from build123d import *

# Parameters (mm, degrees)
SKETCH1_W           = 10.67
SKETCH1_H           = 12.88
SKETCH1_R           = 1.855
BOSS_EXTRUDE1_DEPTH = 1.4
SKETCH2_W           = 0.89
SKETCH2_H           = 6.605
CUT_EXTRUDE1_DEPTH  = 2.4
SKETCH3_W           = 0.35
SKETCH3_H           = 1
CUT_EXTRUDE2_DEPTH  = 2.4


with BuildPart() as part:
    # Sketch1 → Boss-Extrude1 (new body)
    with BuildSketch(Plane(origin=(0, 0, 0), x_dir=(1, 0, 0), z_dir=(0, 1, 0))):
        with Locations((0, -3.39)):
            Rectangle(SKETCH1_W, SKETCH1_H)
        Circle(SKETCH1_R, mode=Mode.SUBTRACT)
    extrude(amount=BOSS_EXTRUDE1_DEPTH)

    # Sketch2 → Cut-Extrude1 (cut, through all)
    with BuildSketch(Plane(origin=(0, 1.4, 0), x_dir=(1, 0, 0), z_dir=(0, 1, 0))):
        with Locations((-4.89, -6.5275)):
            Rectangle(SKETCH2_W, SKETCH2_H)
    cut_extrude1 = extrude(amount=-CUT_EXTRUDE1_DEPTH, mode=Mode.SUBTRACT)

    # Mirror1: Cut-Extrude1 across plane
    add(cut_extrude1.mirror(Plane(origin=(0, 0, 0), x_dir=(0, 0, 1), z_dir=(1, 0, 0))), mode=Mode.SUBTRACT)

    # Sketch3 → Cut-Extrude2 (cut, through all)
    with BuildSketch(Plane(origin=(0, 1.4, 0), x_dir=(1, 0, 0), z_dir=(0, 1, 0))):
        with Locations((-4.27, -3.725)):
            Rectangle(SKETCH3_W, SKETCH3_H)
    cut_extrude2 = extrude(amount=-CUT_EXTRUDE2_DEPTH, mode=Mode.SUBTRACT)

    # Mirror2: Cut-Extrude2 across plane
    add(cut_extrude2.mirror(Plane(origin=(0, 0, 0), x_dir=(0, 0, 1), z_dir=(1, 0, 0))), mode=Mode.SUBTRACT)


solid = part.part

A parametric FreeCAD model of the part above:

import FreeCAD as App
import Part
import Sketcher

V = App.Vector


def add_polygon(sketch, points):
    """Adds a closed chain of lines whose ends are joined by coincident constraints."""
    first, n = sketch.GeometryCount, len(points)
    for a, b in zip(points, points[1:] + points[:1]):
        sketch.addGeometry(Part.LineSegment(App.Vector(*a, 0), App.Vector(*b, 0)), False)
    for i in range(n):
        sketch.addConstraint(Sketcher.Constraint("Coincident", first + i, 2, first + (i + 1) % n, 1))

doc = App.newDocument("Part")
body = doc.addObject("PartDesign::Body", "Body")

# Sketch on XZ plane
sketch1 = doc.addObject("Sketcher::SketchObject", "Sketch")
body.addObject(sketch1)
sketch1.AttachmentSupport = (doc.XZ_Plane, [""])
sketch1.MapMode = "FlatFace"
add_polygon(sketch1, [(-5.3, -3), (-5.3, 9.8), (5.3, 9.8), (5.3, -3)])  # lines 0-3
sketch1.addGeometry(Part.Circle(V(0, 0, 0), V(0, 0, 1), 1.9), False)  # 4
sketch1.addConstraint(Sketcher.Constraint("Vertical", 0))
sketch1.addConstraint(Sketcher.Constraint("Horizontal", 1))
sketch1.addConstraint(Sketcher.Constraint("Vertical", 2))
sketch1.addConstraint(Sketcher.Constraint("Horizontal", 3))
sketch1.addConstraint(Sketcher.Constraint("Coincident", 4, 3, -1, 1))
sketch1.addConstraint(Sketcher.Constraint("Diameter", 4, 3.71))
sketch1.addConstraint(Sketcher.Constraint("DistanceX", 1, 1, 1, 2, 10.67))
sketch1.addConstraint(Sketcher.Constraint("DistanceY", 0, 1, 0, 2, 12.88))
sketch1.addConstraint(Sketcher.Constraint("DistanceY", -1, 1, 0, 2, 9.83))
sketch1.addConstraint(Sketcher.Constraint("DistanceX", 0, 2, -1, 1, 5.335))
pad1 = doc.addObject("PartDesign::Pad", "Pad")
body.addObject(pad1)
pad1.Profile = sketch1
pad1.Length = 1.4
pad1.Reversed = True

# Sketch on XZ plane
sketch2 = doc.addObject("Sketcher::SketchObject", "Sketch001")
body.addObject(sketch2)
sketch2.AttachmentSupport = (doc.XZ_Plane, [""])
sketch2.MapMode = "FlatFace"
sketch2.AttachmentOffset = App.Placement(V(0, 0, -1.4), App.Rotation())
add_polygon(sketch2, [(-5.3, 3.2), (-5.3, 9.8), (-4.4, 9.8), (-4.4, 3.2)])  # lines 0-3
sketch2.addConstraint(Sketcher.Constraint("Vertical", 0))
sketch2.addConstraint(Sketcher.Constraint("Horizontal", 1))
sketch2.addConstraint(Sketcher.Constraint("Vertical", 2))
sketch2.addConstraint(Sketcher.Constraint("Horizontal", 3))
sketch2.addConstraint(Sketcher.Constraint("DistanceX", 1, 1, 1, 2, 0.89))
sketch2.addConstraint(Sketcher.Constraint("DistanceY", 0, 1, 0, 2, 6.605))
sketch2.addConstraint(Sketcher.Constraint("DistanceY", -1, 1, 0, 2, 9.83))
sketch2.addConstraint(Sketcher.Constraint("DistanceX", 0, 2, -1, 1, 5.335))
pocket1 = doc.addObject("PartDesign::Pocket", "Pocket")
body.addObject(pocket1)
pocket1.Profile = sketch2
pocket1.Type = "ThroughAll"
pocket1.Reversed = True
doc.recompute()

mirrored = doc.addObject("PartDesign::Mirrored", "Mirrored")
body.addObject(mirrored)
mirrored.Originals = [pocket1]
mirrored.MirrorPlane = (doc.YZ_Plane, [""])
body.Tip = mirrored

# Sketch on XZ plane
sketch3 = doc.addObject("Sketcher::SketchObject", "Sketch002")
body.addObject(sketch3)
sketch3.AttachmentSupport = (doc.XZ_Plane, [""])
sketch3.MapMode = "FlatFace"
sketch3.AttachmentOffset = App.Placement(V(0, 0, -1.4), App.Rotation())
add_polygon(sketch3, [(-4.45, 3.23), (-4.45, 4.22), (-4.09, 4.22), (-4.09, 3.23)])  # lines 0-3
sketch3.addConstraint(Sketcher.Constraint("Vertical", 0))
sketch3.addConstraint(Sketcher.Constraint("Horizontal", 1))
sketch3.addConstraint(Sketcher.Constraint("Vertical", 2))
sketch3.addConstraint(Sketcher.Constraint("Horizontal", 3))
sketch3.addConstraint(Sketcher.Constraint("DistanceY", 0, 1, 0, 2, 1.0))
sketch3.addConstraint(Sketcher.Constraint("DistanceX", 1, 1, 1, 2, 0.35))
sketch3.addConstraint(Sketcher.Constraint("DistanceX", 0, 2, -1, 1, 4.445))
sketch3.addConstraint(Sketcher.Constraint("DistanceY", -1, 1, 0, 2, 4.225))
pocket2 = doc.addObject("PartDesign::Pocket", "Pocket001")
body.addObject(pocket2)
pocket2.Profile = sketch3
pocket2.Type = "ThroughAll"
pocket2.Reversed = True
doc.recompute()

mirrored2 = doc.addObject("PartDesign::Mirrored", "Mirrored001")
body.addObject(mirrored2)
mirrored2.Originals = [pocket2]
mirrored2.MirrorPlane = (doc.YZ_Plane, [""])
body.Tip = mirrored2

doc.recompute()
